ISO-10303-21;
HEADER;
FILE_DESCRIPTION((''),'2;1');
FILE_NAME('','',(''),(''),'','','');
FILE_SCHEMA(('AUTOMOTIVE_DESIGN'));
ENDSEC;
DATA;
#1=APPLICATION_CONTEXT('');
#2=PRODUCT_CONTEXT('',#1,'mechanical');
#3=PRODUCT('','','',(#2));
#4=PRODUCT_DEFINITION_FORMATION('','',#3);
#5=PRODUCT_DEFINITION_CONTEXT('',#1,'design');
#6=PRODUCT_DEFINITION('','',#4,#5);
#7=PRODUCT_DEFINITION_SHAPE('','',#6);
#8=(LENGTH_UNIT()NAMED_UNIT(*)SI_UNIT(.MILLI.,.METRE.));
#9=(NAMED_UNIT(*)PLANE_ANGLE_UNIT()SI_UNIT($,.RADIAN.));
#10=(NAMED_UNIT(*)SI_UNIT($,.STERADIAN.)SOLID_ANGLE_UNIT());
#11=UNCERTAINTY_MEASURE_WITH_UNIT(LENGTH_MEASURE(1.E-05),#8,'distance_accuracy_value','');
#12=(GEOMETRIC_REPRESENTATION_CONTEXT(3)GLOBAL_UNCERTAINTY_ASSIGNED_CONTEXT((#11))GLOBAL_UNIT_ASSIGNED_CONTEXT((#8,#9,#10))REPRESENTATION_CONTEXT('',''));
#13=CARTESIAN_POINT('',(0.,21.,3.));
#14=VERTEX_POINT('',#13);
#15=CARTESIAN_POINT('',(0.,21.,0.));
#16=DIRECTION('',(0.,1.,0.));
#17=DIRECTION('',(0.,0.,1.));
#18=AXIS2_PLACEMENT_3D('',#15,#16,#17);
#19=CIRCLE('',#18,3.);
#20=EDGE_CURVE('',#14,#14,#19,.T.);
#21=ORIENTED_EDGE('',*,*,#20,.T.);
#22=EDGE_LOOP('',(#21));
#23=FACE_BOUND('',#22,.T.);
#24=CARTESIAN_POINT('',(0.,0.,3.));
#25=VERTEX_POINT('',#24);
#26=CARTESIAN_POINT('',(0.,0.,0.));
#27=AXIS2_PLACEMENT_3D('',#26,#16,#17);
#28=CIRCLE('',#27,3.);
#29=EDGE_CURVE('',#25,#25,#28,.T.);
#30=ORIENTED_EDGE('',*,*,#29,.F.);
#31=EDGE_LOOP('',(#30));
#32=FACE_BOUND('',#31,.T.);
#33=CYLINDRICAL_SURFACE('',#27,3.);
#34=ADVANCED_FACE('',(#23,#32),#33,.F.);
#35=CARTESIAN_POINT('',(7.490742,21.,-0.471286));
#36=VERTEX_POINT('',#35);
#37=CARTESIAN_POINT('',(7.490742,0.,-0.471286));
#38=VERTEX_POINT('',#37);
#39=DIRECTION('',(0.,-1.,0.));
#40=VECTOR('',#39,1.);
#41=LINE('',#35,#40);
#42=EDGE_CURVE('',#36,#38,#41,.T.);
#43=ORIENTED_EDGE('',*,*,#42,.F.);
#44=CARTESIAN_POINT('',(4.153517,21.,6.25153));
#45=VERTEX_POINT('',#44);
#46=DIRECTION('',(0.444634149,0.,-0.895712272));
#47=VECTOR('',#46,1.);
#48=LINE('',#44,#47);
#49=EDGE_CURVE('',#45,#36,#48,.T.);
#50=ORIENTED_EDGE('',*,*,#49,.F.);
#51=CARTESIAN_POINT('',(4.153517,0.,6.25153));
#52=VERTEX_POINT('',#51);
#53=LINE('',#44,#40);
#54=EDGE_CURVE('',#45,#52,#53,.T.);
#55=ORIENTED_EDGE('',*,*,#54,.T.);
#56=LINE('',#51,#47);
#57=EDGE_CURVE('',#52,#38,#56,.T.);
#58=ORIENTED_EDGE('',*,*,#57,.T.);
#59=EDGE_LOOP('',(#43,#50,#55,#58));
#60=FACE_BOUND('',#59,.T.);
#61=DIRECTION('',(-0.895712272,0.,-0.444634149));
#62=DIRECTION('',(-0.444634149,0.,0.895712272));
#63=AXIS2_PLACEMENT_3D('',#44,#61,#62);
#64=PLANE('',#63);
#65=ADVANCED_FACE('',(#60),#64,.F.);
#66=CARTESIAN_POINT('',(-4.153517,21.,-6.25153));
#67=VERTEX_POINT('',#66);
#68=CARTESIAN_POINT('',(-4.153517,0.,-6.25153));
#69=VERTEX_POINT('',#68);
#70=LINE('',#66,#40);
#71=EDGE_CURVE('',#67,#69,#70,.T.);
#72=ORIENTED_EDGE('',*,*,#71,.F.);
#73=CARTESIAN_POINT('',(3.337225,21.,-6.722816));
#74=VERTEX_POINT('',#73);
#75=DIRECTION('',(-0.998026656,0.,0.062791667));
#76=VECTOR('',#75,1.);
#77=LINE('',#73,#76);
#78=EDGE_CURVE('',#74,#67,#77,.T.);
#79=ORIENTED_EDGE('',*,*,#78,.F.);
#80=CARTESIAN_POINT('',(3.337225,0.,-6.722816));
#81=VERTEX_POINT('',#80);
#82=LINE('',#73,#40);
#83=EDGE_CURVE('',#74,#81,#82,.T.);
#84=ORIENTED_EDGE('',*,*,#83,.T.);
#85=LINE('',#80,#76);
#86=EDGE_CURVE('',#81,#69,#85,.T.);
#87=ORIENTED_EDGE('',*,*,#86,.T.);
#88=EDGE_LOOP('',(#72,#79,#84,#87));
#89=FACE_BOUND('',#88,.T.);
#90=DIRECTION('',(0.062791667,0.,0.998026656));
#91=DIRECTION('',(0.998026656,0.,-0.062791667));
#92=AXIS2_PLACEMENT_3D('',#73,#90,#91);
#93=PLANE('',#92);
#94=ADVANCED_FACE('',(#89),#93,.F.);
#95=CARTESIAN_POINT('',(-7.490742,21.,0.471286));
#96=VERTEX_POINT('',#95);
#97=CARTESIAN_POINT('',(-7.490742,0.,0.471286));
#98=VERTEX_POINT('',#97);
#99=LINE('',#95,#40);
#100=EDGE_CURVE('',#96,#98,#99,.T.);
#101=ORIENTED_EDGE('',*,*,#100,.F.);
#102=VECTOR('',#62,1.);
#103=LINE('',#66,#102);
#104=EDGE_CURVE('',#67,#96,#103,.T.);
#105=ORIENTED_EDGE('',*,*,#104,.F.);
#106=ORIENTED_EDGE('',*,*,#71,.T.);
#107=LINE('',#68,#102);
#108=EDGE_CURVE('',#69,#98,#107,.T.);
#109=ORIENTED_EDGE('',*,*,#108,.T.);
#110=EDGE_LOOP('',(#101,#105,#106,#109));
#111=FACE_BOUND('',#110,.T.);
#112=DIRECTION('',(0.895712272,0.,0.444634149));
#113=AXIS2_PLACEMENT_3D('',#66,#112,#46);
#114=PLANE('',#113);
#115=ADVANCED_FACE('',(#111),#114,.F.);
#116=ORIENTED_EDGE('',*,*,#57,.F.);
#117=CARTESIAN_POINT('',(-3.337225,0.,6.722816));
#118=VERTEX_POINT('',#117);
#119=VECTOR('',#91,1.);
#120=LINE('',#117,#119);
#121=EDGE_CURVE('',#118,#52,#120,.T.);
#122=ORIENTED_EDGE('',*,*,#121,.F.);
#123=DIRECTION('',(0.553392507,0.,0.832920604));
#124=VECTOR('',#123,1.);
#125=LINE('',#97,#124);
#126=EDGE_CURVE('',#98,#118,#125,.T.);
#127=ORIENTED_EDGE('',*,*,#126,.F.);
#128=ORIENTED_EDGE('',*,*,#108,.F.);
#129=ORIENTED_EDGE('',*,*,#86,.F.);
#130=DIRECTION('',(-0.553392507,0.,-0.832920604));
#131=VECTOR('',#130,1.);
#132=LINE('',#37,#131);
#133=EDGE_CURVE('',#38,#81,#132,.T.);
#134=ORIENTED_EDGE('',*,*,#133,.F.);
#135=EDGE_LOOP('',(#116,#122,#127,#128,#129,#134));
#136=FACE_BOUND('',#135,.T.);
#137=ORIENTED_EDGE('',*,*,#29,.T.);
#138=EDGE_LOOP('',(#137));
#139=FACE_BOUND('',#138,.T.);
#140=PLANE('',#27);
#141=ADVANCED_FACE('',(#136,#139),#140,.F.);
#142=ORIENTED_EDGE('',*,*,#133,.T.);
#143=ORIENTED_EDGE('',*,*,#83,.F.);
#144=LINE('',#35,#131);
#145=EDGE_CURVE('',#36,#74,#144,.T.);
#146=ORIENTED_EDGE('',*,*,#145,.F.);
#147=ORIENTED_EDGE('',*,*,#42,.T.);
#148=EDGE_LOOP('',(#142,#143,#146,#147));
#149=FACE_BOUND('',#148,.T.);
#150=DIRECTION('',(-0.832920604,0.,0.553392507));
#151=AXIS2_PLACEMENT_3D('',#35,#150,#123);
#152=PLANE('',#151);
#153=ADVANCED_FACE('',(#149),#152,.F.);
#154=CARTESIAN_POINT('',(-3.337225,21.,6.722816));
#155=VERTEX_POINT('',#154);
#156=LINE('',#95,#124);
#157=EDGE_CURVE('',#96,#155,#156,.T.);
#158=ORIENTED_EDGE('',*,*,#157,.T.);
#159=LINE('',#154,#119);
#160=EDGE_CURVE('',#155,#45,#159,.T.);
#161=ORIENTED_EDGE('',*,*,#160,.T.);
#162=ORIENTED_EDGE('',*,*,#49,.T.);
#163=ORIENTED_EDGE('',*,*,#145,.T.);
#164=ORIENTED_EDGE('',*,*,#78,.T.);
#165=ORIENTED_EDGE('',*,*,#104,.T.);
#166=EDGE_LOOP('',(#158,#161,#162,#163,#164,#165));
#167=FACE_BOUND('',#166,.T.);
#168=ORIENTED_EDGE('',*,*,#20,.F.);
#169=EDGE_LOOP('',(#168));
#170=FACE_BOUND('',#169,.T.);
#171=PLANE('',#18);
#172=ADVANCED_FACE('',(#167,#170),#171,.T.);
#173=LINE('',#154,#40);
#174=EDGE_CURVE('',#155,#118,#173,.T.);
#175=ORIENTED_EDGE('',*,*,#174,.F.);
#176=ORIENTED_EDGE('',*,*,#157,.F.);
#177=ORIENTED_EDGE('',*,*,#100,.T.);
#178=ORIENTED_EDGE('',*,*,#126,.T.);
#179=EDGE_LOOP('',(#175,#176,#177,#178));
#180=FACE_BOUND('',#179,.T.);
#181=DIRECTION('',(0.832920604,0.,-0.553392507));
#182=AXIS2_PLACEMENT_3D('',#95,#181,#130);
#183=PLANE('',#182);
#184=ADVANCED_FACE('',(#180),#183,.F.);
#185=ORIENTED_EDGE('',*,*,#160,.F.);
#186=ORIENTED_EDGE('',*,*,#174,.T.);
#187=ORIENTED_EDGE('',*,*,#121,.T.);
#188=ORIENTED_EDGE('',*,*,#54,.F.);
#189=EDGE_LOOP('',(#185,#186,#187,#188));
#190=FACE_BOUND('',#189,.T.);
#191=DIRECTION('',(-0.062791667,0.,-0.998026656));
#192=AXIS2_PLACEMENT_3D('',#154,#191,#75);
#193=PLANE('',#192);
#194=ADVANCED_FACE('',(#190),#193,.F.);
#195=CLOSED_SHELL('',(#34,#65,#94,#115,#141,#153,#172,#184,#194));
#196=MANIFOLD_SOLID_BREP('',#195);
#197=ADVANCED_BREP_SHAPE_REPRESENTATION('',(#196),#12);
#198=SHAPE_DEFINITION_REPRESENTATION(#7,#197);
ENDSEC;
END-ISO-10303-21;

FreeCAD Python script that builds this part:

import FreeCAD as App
import Part
import Sketcher
Q = App.Units.Quantity


def add_polygon(sketch, points):
    """Adds a closed chain of lines whose ends are joined by coincident constraints."""
    first, n = sketch.GeometryCount, len(points)
    for a, b in zip(points, points[1:] + points[:1]):
        sketch.addGeometry(Part.LineSegment(App.Vector(*a, 0), App.Vector(*b, 0)), False)
    for i in range(n):
        sketch.addConstraint(Sketcher.Constraint("Coincident", first + i, 2, first + (i + 1) % n, 1))

doc = App.newDocument("Part")
body = doc.addObject("PartDesign::Body", "Body")

sketch1 = doc.addObject("Sketcher::SketchObject", "Sketch")
body.addObject(sketch1)
sketch1.AttachmentSupport = (doc.XZ_Plane, [""])
sketch1.MapMode = "FlatFace"
add_polygon(sketch1, [(-3, 7), (4, 6), (7, 0), (3, -7), (-4, -6), (-7, 0)])
sketch1.addConstraint(Sketcher.Constraint("Symmetric", 0, 2, 3, 2, -1, 1))
sketch1.addConstraint(Sketcher.Constraint("Symmetric", 1, 2, 4, 2, -1, 1))
sketch1.addConstraint(Sketcher.Constraint("Symmetric", 2, 2, 5, 2, -1, 1))
sketch1.addConstraint(Sketcher.Constraint("Equal", 0, 1))
sketch1.addConstraint(Sketcher.Constraint("Equal", 1, 2))
sketch1.addConstraint(Sketcher.Constraint("DistanceY", -1, 1, 0, 2, Q("6.25153 mm")))
sketch1.addConstraint(Sketcher.Constraint("DistanceY", 2, 2, 1, 2, Q("6.25153 mm")))
sketch1.addConstraint(Sketcher.Constraint("DistanceX", 2, 2, 0, 2, Q("0.816292 mm")))
sketch1.addConstraint(Sketcher.Constraint("DistanceX", 3, 2, 1, 2, Q("11.64426 mm")))
pad1 = doc.addObject("PartDesign::Pad", "Pad")
body.addObject(pad1)
pad1.Profile = sketch1
pad1.Length = 21
pad1.Reversed = True

sketch2 = doc.addObject("Sketcher::SketchObject", "Sketch001")
body.addObject(sketch2)
sketch2.AttachmentSupport = (doc.XZ_Plane, [""])
sketch2.MapMode = "FlatFace"
sketch2.AttachmentOffset = App.Placement(App.Vector(0, 0, -21), App.Rotation())
sketch2.addGeometry(Part.Circle(App.Vector(0, 0, 0), App.Vector(0, 0, 1), 3), False)
sketch2.addConstraint(Sketcher.Constraint("Coincident", 0, 3, -1, 1))
sketch2.addConstraint(Sketcher.Constraint("Diameter", 0, Q("6 mm")))
pocket1 = doc.addObject("PartDesign::Pocket", "Pocket")
body.addObject(pocket1)
pocket1.Profile = sketch2
pocket1.Type = "ThroughAll"
pocket1.Reversed = True

doc.recompute()
